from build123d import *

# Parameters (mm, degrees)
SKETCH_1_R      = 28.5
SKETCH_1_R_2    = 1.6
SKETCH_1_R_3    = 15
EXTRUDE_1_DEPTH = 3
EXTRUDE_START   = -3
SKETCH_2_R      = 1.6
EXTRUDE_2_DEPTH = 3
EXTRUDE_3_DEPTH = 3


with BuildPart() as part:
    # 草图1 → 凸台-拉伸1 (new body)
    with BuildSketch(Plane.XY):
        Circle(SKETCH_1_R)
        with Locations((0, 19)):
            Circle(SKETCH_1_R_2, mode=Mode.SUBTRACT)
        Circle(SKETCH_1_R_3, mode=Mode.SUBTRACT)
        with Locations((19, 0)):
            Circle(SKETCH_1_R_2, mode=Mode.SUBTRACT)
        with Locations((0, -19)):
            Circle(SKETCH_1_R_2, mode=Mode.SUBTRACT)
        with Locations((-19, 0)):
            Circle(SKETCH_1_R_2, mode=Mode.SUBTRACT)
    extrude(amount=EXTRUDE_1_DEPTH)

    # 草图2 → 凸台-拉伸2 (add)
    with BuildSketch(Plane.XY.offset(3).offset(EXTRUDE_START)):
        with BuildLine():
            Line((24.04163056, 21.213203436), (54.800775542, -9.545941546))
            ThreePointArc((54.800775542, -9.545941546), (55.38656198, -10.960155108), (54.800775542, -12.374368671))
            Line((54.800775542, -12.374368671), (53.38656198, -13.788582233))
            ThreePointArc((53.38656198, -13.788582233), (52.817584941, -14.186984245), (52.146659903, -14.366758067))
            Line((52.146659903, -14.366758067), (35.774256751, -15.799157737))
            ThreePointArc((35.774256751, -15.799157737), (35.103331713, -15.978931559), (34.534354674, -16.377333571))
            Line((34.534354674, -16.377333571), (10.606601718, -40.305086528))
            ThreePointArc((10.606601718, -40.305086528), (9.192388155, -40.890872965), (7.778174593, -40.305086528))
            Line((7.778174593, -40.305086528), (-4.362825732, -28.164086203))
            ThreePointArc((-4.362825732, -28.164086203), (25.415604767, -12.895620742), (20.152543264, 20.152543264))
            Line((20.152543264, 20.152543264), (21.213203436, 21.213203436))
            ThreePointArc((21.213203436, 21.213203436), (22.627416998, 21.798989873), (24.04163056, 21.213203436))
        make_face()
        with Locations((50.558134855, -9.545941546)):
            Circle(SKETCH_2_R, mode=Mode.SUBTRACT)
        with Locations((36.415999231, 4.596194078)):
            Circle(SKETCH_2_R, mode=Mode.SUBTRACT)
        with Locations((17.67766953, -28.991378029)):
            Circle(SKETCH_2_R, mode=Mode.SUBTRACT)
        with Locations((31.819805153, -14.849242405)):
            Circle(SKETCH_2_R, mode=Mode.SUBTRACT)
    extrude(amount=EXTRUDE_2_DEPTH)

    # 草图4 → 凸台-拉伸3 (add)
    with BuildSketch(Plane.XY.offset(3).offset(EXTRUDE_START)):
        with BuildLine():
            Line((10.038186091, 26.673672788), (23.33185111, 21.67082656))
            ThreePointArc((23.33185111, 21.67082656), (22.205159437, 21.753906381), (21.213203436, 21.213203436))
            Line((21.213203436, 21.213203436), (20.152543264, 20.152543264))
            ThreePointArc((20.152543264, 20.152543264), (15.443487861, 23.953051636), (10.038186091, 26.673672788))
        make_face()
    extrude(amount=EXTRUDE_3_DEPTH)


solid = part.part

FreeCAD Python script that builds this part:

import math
import FreeCAD as App
import Part
import Sketcher
Q = App.Units.Quantity

doc = App.newDocument("Part")
params = doc.addObject("Spreadsheet::Sheet", "Params")
for row, (alias, value) in enumerate([
    ("sketch1_diameter", "57 mm"),
    ("sketch1_diameter2", "30 mm"),
    ("sketch1_diameter3", "3.2 mm"),
    ("pad1_length", "3 mm"),
    ("sketch2_radius", "2 mm"),
    ("sketch2_diameter", "3.2 mm"),
    ("sketch2_radius2", "28.5 mm"),
    ("sketch2_length", "43.5 mm"),
    ("sketch2_length2", "1.5 mm"),
    ("pad2_length", "3 mm"),
    ("sketch3_radius", "2 mm"),
    ("sketch3_radius2", "28.5 mm"),
    ("sketch3_length", "1.5 mm"),
    ("pad3_length", "3 mm"),
], start=1):
    params.set(f"A{row}", alias)
    params.set(f"B{row}", "=" + value)
    params.setAlias(f"B{row}", alias)

body = doc.addObject("PartDesign::Body", "Body")

sketch1 = body.newObject("Sketcher::SketchObject", "Sketch")
sketch1.AttachmentSupport = (doc.getObject("XY_Plane"), [""])
sketch1.MapMode = "FlatFace"
sketch1.addGeometry([
    Part.Circle(App.Vector(0, 0, 0), App.Vector(0, 0, 1), 28.5),
    Part.Circle(App.Vector(0, -19, 0), App.Vector(0, 0, 1), 1.6),
    Part.Circle(App.Vector(-19, 0, 0), App.Vector(0, 0, 1), 1.6),
    Part.Circle(App.Vector(0, 0, 0), App.Vector(0, 0, 1), 15),
    Part.Circle(App.Vector(19, 0, 0), App.Vector(0, 0, 1), 1.6),
    Part.Circle(App.Vector(0, 19, 0), App.Vector(0, 0, 1), 1.6),
], False)
sketch1.addConstraint([
    Sketcher.Constraint("Coincident", 0, 3, -1, 1),
    Sketcher.Constraint("Coincident", 3, 3, -1, 1),
    Sketcher.Constraint("Equal", 1, 2),
    Sketcher.Constraint("Equal", 2, 4),
    Sketcher.Constraint("Equal", 4, 5),
    Sketcher.Constraint("Symmetric", 2, 3, 4, 3, -1, 1),
    Sketcher.Constraint("Symmetric", 1, 3, 5, 3, -1, 1),
    Sketcher.Constraint("PointOnObject", 1, 3, -2),
    Sketcher.Constraint("PointOnObject", 2, 3, -1),
    Sketcher.Constraint("Diameter", 0, 57.0),
    Sketcher.Constraint("Diameter", 3, 30.0),
    Sketcher.Constraint("Diameter", 1, 3.2),
    Sketcher.Constraint("DistanceY", 1, 3, -1, 1, 19.0),
    Sketcher.Constraint("DistanceX", 2, 3, -1, 1, 19.0),
])
sketch1.setExpression("Constraints[9]", "Params.sketch1_diameter")
sketch1.setExpression("Constraints[10]", "Params.sketch1_diameter2")
sketch1.setExpression("Constraints[11]", "Params.sketch1_diameter3")
pad1 = body.newObject("PartDesign::Pad", "Pad")
pad1.Profile = sketch1
pad1.setExpression("Length", "Params.pad1_length")

sketch2 = body.newObject("Sketcher::SketchObject", "Sketch001")
sketch2.AttachmentSupport = (doc.getObject("XY_Plane"), [""])
sketch2.MapMode = "FlatFace"
sketch2.addGeometry([
    Part.LineSegment(App.Vector(54.8, -9.5, 0), App.Vector(24, 21.2, 0)),
    Part.ArcOfCircle(Part.Circle(App.Vector(22.6, 19.8, 0), App.Vector(0, 0, 1), 2), math.radians(45), math.radians(135)),
    Part.LineSegment(App.Vector(21.2, 21.2, 0), App.Vector(20.2, 20.2, 0)),
    Part.ArcOfCircle(Part.Circle(App.Vector(0, 0, 0), App.Vector(0, 0, 1), 28.5), math.radians(-99), math.radians(45)),
    Part.LineSegment(App.Vector(-4.4, -28.2, 0), App.Vector(7.8, -40.3, 0)),
    Part.ArcOfCircle(Part.Circle(App.Vector(9.2, -38.9, 0), App.Vector(0, 0, 1), 2), math.radians(-135), math.radians(-45)),
    Part.LineSegment(App.Vector(10.6, -40.3, 0), App.Vector(34.5, -16.4, 0)),
    Part.ArcOfCircle(Part.Circle(App.Vector(35.9, -17.8, 0), App.Vector(0, 0, 1), 2), math.radians(95), math.radians(135)),
    Part.LineSegment(App.Vector(35.8, -15.8, 0), App.Vector(52.1, -14.4, 0)),
    Part.ArcOfCircle(Part.Circle(App.Vector(52, -12.4, 0), App.Vector(0, 0, 1), 2), math.radians(-85), math.radians(-45)),
    Part.LineSegment(App.Vector(53.4, -13.8, 0), App.Vector(54.8, -12.4, 0)),
    Part.ArcOfCircle(Part.Circle(App.Vector(53.4, -11, 0), App.Vector(0, 0, 1), 2), math.radians(-45), math.radians(45)),
    Part.Circle(App.Vector(17.7, -29, 0), App.Vector(0, 0, 1), 1.6),
    Part.Circle(App.Vector(31.8, -14.8, 0), App.Vector(0, 0, 1), 1.6),
    Part.Circle(App.Vector(50.6, -9.5, 0), App.Vector(0, 0, 1), 1.6),
    Part.Circle(App.Vector(36.4, 4.6, 0), App.Vector(0, 0, 1), 1.6),
], False)
sketch2.addConstraint([
    Sketcher.Constraint("Tangent", 0, 2, 1, 1),
    Sketcher.Constraint("Tangent", 1, 2, 2, 1),
    Sketcher.Constraint("Coincident", 2, 2, 3, 2),
    Sketcher.Constraint("Coincident", 3, 1, 4, 1),
    Sketcher.Constraint("Tangent", 4, 2, 5, 1),
    Sketcher.Constraint("Tangent", 5, 2, 6, 1),
    Sketcher.Constraint("Tangent", 6, 2, 7, 2),
    Sketcher.Constraint("Tangent", 7, 1, 8, 1),
    Sketcher.Constraint("Tangent", 8, 2, 9, 1),
    Sketcher.Constraint("Tangent", 9, 2, 10, 1),
    Sketcher.Constraint("Tangent", 10, 2, 11, 1),
    Sketcher.Constraint("Tangent", 11, 2, 0, 1),
    Sketcher.Constraint("Coincident", 3, 3, -1, 1),
    Sketcher.Constraint("Equal", 1, 5),
    Sketcher.Constraint("Equal", 5, 7),
    Sketcher.Constraint("Equal", 7, 9),
    Sketcher.Constraint("Equal", 9, 11),
    Sketcher.Constraint("Equal", 12, 13),
    Sketcher.Constraint("Equal", 13, 14),
    Sketcher.Constraint("Equal", 14, 15),
    Sketcher.Constraint("Perpendicular", 0, 2),
    Sketcher.Constraint("Perpendicular", 2, 4),
    Sketcher.Constraint("Perpendicular", 4, 6),
    Sketcher.Constraint("Parallel", 6, 10),
    Sketcher.Constraint("Horizontal", 0, 2, 1, 2),
    Sketcher.Constraint("Horizontal", 9, 3, 10, 2),
    Sketcher.Constraint("Horizontal", 14, 3, 11, 2),
    Sketcher.Constraint("Radius", 1, 2.0),
    Sketcher.Constraint("Diameter", 12, 3.2),
    Sketcher.Constraint("Radius", 3, 28.5),
    Sketcher.Constraint("Angle", 8, Q("5 deg")),
    Sketcher.Constraint("Distance", 0, 43.5),
    Sketcher.Constraint("Distance", 2, 1.5),
    Sketcher.Constraint("DistanceX", -1, 1, 15, 3, 36.415999),
    Sketcher.Constraint("DistanceX", 3, 1, 4, 2, 12.141),
    Sketcher.Constraint("DistanceX", -1, 1, 5, 2, 10.606602),
    Sketcher.Constraint("DistanceX", 12, 3, 7, 3, 18.270899),
    Sketcher.Constraint("DistanceY", 13, 3, 14, 3, 5.303301),
    Sketcher.Constraint("DistanceX", 1, 2, 13, 3, 10.606602),
    Sketcher.Constraint("DistanceY", 7, 1, 8, 2, 1.4324),
    Sketcher.Constraint("DistanceY", 12, 3, -1, 1, 28.991378),
    Sketcher.Constraint("DistanceX", 13, 3, 14, 3, 18.73833),
    Sketcher.Constraint("DistanceY", 7, 3, 15, 3, 22.387741),
])
sketch2.setExpression("Constraints[27]", "Params.sketch2_radius")
sketch2.setExpression("Constraints[28]", "Params.sketch2_diameter")
sketch2.setExpression("Constraints[29]", "Params.sketch2_radius2")
sketch2.setExpression("Constraints[31]", "Params.sketch2_length")
sketch2.setExpression("Constraints[32]", "Params.sketch2_length2")
pad2 = body.newObject("PartDesign::Pad", "Pad001")
pad2.Profile = sketch2
pad2.setExpression("Length", "Params.pad2_length")

sketch3 = body.newObject("Sketcher::SketchObject", "Sketch002")
sketch3.AttachmentSupport = (doc.getObject("XY_Plane"), [""])
sketch3.MapMode = "FlatFace"
sketch3.addGeometry([
    Part.LineSegment(App.Vector(23.3, 21.7, 0), App.Vector(10, 26.7, 0)),
    Part.ArcOfCircle(Part.Circle(App.Vector(0, 0, 0), App.Vector(0, 0, 1), 28.5), math.radians(45), math.radians(69)),
    Part.LineSegment(App.Vector(20.2, 20.2, 0), App.Vector(21.2, 21.2, 0)),
    Part.ArcOfCircle(Part.Circle(App.Vector(22.6, 19.8, 0), App.Vector(0, 0, 1), 2), math.radians(69), math.radians(135)),
], False)
sketch3.addConstraint([
    Sketcher.Constraint("Tangent", 0, 2, 1, 2),
    Sketcher.Constraint("Coincident", 1, 1, 2, 1),
    Sketcher.Constraint("Tangent", 2, 2, 3, 2),
    Sketcher.Constraint("Tangent", 3, 1, 0, 1),
    Sketcher.Constraint("Coincident", 1, 3, -1, 1),
    Sketcher.Constraint("Radius", 3, 2.0),
    Sketcher.Constraint("Radius", 1, 28.5),
    Sketcher.Constraint("Angle", 2, Q("45 deg")),
    Sketcher.Constraint("Distance", 2, 1.5),
    Sketcher.Constraint("DistanceY", -1, 1, 3, 3, 19.79899),
])
sketch3.setExpression("Constraints[5]", "Params.sketch3_radius")
sketch3.setExpression("Constraints[6]", "Params.sketch3_radius2")
sketch3.setExpression("Constraints[8]", "Params.sketch3_length")
pad3 = body.newObject("PartDesign::Pad", "Pad002")
pad3.Profile = sketch3
pad3.setExpression("Length", "Params.pad3_length")

doc.recompute()
